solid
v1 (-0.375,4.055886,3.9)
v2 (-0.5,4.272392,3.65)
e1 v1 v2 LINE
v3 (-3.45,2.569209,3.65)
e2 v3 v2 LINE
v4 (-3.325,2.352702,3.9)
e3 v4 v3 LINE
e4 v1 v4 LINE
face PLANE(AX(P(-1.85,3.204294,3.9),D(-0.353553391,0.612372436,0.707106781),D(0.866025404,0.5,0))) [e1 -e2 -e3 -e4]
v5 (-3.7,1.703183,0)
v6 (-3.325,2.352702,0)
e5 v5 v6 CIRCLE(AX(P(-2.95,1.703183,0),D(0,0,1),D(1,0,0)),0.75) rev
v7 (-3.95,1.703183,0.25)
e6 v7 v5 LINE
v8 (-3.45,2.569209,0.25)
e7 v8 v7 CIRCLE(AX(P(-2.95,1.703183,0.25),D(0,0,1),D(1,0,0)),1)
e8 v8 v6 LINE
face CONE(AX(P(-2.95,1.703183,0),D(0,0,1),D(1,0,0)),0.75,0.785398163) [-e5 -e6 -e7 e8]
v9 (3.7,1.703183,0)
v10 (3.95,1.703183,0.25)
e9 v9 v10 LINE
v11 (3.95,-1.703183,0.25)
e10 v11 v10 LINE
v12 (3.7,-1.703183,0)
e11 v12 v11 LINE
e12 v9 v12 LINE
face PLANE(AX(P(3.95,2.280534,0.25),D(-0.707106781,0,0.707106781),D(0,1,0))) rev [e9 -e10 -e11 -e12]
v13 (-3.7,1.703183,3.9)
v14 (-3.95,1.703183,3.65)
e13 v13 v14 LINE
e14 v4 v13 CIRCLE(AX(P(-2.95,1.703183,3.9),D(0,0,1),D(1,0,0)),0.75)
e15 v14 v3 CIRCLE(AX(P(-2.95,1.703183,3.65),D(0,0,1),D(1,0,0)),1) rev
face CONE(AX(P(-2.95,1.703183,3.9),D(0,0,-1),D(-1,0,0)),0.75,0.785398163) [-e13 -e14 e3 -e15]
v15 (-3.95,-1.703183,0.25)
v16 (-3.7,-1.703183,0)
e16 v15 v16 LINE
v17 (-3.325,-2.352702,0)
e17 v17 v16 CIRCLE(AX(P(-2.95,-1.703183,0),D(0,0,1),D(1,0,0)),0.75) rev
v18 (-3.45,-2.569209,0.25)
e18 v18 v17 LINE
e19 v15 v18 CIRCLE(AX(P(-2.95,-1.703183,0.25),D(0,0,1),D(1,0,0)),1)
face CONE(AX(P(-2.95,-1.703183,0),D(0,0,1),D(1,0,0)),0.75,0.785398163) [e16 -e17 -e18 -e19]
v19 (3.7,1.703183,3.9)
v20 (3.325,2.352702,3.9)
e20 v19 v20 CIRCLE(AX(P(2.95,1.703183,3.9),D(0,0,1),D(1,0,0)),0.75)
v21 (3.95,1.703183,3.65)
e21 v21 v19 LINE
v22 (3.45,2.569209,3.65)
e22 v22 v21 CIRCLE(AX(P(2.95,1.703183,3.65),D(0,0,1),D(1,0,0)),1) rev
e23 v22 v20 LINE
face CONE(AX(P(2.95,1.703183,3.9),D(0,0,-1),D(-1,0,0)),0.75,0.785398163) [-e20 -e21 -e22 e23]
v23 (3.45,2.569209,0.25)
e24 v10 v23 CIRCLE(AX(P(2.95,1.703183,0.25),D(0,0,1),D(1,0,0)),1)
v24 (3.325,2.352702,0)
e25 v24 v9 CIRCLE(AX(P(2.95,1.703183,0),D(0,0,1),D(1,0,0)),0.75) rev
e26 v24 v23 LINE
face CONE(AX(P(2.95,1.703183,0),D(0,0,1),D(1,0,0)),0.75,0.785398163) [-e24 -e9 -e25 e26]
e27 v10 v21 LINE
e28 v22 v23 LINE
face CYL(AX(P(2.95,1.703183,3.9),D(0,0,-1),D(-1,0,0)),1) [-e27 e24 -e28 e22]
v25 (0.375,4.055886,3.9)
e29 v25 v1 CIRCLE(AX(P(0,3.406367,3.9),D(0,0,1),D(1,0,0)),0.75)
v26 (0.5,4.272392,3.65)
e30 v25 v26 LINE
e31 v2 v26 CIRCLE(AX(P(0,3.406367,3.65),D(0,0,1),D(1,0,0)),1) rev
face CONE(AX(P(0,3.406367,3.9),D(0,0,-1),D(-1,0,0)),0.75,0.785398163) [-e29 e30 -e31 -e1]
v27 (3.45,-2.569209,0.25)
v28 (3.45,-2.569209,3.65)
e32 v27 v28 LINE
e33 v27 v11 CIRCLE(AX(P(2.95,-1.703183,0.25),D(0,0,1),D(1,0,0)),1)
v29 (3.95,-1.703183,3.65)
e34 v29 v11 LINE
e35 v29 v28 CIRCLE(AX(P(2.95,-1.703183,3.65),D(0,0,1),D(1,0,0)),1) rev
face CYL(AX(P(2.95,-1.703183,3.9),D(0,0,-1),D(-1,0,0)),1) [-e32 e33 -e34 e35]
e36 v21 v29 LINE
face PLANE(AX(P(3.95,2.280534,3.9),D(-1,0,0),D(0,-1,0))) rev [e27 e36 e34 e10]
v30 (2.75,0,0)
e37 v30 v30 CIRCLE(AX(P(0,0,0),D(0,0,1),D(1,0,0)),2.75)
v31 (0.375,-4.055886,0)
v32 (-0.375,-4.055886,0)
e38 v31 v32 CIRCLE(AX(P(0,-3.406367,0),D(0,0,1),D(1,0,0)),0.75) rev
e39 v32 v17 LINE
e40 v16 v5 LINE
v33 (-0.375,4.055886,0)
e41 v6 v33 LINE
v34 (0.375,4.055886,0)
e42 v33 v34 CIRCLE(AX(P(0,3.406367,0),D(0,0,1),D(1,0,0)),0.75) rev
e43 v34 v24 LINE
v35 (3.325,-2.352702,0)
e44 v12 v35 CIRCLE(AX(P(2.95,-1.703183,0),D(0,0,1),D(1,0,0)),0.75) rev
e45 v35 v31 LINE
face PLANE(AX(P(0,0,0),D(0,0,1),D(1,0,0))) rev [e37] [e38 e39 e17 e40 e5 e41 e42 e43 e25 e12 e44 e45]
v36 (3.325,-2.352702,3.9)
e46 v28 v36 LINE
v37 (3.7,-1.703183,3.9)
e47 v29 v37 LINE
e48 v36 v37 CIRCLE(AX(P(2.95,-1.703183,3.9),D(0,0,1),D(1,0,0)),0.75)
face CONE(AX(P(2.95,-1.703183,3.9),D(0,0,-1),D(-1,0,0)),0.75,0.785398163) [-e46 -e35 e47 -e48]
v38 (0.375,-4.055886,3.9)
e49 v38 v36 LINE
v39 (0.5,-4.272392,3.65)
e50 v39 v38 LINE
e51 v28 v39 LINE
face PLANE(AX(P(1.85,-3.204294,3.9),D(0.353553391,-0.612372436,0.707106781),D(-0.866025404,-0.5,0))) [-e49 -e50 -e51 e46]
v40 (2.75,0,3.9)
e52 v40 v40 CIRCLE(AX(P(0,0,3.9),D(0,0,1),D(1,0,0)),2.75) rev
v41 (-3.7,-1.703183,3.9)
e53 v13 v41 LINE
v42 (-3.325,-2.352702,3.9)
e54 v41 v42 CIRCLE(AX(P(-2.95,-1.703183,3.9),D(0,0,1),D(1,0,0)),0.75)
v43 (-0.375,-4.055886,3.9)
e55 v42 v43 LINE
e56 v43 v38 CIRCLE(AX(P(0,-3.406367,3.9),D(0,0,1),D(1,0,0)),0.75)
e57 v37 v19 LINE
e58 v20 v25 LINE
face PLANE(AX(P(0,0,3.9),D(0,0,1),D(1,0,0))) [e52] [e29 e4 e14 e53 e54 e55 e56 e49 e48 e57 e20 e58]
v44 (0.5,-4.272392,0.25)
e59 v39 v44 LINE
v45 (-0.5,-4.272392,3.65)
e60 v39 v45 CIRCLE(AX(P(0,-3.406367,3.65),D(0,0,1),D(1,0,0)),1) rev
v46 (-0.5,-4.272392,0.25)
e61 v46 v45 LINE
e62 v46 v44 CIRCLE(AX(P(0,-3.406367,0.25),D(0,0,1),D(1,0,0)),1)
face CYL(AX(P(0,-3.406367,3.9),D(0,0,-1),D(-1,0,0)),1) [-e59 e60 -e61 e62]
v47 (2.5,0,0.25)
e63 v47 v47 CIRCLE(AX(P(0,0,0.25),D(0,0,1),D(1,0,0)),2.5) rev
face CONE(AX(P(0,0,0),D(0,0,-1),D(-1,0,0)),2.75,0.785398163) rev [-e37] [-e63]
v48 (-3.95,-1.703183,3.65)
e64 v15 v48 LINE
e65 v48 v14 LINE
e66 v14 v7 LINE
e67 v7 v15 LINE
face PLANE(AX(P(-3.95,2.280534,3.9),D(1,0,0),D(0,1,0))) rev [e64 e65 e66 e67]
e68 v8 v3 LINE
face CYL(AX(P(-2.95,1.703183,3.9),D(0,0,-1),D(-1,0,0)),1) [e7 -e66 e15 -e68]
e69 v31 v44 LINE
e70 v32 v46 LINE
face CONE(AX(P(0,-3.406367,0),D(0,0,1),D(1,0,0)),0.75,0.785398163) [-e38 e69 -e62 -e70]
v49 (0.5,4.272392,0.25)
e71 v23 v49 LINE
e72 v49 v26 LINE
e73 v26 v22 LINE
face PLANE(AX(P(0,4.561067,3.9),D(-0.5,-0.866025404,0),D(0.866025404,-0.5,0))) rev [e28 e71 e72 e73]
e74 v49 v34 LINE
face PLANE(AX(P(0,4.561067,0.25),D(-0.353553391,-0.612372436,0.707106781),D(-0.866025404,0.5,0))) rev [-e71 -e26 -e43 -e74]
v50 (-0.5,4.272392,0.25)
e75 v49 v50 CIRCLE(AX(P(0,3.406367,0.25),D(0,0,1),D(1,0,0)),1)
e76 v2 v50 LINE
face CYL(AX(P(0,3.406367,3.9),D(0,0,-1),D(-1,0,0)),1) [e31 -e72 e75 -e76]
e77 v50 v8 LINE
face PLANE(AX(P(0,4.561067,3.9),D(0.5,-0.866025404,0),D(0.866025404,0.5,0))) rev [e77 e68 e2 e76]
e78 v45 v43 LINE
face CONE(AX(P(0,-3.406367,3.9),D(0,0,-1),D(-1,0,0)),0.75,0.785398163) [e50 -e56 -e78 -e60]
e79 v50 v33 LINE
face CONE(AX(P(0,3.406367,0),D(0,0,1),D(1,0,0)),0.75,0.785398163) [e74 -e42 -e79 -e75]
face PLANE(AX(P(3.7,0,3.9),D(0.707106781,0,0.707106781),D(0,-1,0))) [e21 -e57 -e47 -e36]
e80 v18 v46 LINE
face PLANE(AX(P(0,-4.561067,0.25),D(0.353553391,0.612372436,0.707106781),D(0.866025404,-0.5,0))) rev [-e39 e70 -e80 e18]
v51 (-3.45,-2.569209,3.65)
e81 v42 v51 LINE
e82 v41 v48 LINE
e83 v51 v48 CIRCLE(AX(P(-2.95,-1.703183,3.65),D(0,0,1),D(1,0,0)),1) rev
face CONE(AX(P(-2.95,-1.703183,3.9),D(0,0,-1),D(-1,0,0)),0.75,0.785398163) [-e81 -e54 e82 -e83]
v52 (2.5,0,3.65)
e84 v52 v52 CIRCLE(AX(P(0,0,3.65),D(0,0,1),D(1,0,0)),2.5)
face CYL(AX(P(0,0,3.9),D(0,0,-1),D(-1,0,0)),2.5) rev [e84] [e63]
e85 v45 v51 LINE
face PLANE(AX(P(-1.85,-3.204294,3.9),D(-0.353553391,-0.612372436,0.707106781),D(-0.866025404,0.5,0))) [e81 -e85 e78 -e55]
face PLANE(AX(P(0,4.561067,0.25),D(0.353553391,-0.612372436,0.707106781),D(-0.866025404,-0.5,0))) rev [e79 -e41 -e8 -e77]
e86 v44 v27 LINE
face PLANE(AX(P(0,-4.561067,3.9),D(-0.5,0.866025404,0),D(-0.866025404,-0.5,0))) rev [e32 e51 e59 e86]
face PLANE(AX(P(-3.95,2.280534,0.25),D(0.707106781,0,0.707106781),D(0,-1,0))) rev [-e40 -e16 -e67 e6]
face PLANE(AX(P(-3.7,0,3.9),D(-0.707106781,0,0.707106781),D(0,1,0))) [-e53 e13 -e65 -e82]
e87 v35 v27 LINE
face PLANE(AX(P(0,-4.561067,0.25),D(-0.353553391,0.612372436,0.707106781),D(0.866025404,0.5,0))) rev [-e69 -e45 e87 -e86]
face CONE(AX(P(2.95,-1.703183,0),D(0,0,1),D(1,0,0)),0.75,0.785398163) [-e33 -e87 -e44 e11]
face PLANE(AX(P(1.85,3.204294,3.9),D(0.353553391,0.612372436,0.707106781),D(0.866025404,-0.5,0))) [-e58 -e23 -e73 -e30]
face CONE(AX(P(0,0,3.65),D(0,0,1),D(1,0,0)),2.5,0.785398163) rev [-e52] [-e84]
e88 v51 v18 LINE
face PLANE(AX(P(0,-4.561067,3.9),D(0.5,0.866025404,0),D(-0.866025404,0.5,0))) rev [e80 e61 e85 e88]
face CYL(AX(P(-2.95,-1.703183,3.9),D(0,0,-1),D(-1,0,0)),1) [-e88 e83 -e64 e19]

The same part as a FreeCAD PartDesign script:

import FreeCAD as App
import Part
import Sketcher

V = App.Vector
Q = App.Units.Quantity


def edges_at(feature, points):
    """Names of the edges that pass closest to the given points."""
    edges = feature.Shape.Edges
    near = lambda p: min(range(len(edges)), key=lambda i: edges[i].distToShape(Part.Vertex(*p))[0])
    return sorted({f"Edge{near(p) + 1}" for p in points})

doc = App.newDocument("Part")
params = doc.addObject("Spreadsheet::Sheet", "Params")
for row, (alias, value) in enumerate([
    ("sketch1_diameter", "5 mm"),
    ("pad1_length", "3.9 mm"),
    ("fillet_radius", "1 mm"),
    ("chamfer_size", "0.25 mm"),
], start=1):
    params.set(f"A{row}", alias)
    params.set(f"B{row}", "=" + value)
    params.setAlias(f"B{row}", alias)

body = doc.addObject("PartDesign::Body", "Body")

# Sketch on XY plane
sketch1 = body.newObject("Sketcher::SketchObject", "Sketch")
sketch1.AttachmentSupport = (doc.getObject("XY_Plane"), [""])
sketch1.MapMode = "FlatFace"
sketch1.addGeometry([
    Part.LineSegment(V(4, 2.3, 0), V(0, 4.6, 0)),  # 0
    Part.LineSegment(V(0, 4.6, 0), V(-4, 2.3, 0)),  # 1
    Part.LineSegment(V(-4, 2.3, 0), V(-4, -2.3, 0)),  # 2
    Part.LineSegment(V(-4, -2.3, 0), V(0, -4.6, 0)),  # 3
    Part.LineSegment(V(0, -4.6, 0), V(4, -2.3, 0)),  # 4
    Part.LineSegment(V(4, -2.3, 0), V(4, 2.3, 0)),  # 5
    Part.Circle(V(0, 0, 0), V(0, 0, 1), 2.5),  # 6
], False)
sketch1.addConstraint([
    Sketcher.Constraint("Coincident", 0, 2, 1, 1),
    Sketcher.Constraint("Coincident", 1, 2, 2, 1),
    Sketcher.Constraint("Coincident", 2, 2, 3, 1),
    Sketcher.Constraint("Coincident", 3, 2, 4, 1),
    Sketcher.Constraint("Coincident", 4, 2, 5, 1),
    Sketcher.Constraint("Coincident", 5, 2, 0, 1),
    Sketcher.Constraint("Vertical", 2),
    Sketcher.Constraint("Vertical", 5),
    Sketcher.Constraint("Coincident", 6, 3, -1, 1),
    Sketcher.Constraint("Symmetric", 0, 2, 3, 2, -1, 1),
    Sketcher.Constraint("Symmetric", 1, 2, 4, 2, -1, 1),
    Sketcher.Constraint("PointOnObject", 0, 2, -2),
    Sketcher.Constraint("Parallel", 0, 3),
    Sketcher.Constraint("Horizontal", 2, 2, 4, 2),
    Sketcher.Constraint("Diameter", 6, 5.0),
    Sketcher.Constraint("Angle", 0, Q("150 deg")),
    Sketcher.Constraint("DistanceX", 2, 2, 4, 2, 7.9),
    Sketcher.Constraint("DistanceY", 2, 2, 0, 2, 6.841601),
])
sketch1.setExpression("Constraints[14]", "Params.sketch1_diameter")
pad1 = body.newObject("PartDesign::Pad", "Pad")
pad1.Profile = sketch1
pad1.setExpression("Length", "Params.pad1_length")
doc.recompute()

fillet = body.newObject("PartDesign::Fillet", "Fillet")
fillet.Base = (pad1, edges_at(pad1, [
    (0, 4.561, 1.95),
    (3.95, 2.281, 1.95),
    (3.95, -2.281, 1.95),
    (0, -4.561, 1.95),
    (-3.95, -2.281, 1.95),
    (-3.95, 2.281, 1.95),
]))
fillet.setExpression("Radius", "Params.fillet_radius")
doc.recompute()

chamfer = body.newObject("PartDesign::Chamfer", "Chamfer")
chamfer.Base = (fillet, edges_at(fillet, [
    (-2.5, 0, 0),
    (-2.5, 0, 3.9),
    (1.975, 3.421, 0),
    (1.975, 3.421, 3.9),
    (-1.975, 3.421, 0),
    (3.95, 0, 0),
    (1.975, -3.421, 0),
    (-1.975, -3.421, 0),
    (-3.95, 0, 0),
    (0, 4.406, 0),
    (-3.816, 2.203, 0),
    (-3.816, -2.203, 0),
    (0, -4.406, 0),
    (3.816, -2.203, 0),
    (3.816, 2.203, 0),
    (3.95, 0, 3.9),
    (-1.975, 3.421, 3.9),
    (-3.95, 0, 3.9),
    (-1.975, -3.421, 3.9),
    (1.975, -3.421, 3.9),
    (0, 4.406, 3.9),
    (-3.816, 2.203, 3.9),
    (-3.816, -2.203, 3.9),
    (0, -4.406, 3.9),
    (3.816, -2.203, 3.9),
    (3.816, 2.203, 3.9),
]))
chamfer.setExpression("Size", "Params.chamfer_size")

doc.recompute()
